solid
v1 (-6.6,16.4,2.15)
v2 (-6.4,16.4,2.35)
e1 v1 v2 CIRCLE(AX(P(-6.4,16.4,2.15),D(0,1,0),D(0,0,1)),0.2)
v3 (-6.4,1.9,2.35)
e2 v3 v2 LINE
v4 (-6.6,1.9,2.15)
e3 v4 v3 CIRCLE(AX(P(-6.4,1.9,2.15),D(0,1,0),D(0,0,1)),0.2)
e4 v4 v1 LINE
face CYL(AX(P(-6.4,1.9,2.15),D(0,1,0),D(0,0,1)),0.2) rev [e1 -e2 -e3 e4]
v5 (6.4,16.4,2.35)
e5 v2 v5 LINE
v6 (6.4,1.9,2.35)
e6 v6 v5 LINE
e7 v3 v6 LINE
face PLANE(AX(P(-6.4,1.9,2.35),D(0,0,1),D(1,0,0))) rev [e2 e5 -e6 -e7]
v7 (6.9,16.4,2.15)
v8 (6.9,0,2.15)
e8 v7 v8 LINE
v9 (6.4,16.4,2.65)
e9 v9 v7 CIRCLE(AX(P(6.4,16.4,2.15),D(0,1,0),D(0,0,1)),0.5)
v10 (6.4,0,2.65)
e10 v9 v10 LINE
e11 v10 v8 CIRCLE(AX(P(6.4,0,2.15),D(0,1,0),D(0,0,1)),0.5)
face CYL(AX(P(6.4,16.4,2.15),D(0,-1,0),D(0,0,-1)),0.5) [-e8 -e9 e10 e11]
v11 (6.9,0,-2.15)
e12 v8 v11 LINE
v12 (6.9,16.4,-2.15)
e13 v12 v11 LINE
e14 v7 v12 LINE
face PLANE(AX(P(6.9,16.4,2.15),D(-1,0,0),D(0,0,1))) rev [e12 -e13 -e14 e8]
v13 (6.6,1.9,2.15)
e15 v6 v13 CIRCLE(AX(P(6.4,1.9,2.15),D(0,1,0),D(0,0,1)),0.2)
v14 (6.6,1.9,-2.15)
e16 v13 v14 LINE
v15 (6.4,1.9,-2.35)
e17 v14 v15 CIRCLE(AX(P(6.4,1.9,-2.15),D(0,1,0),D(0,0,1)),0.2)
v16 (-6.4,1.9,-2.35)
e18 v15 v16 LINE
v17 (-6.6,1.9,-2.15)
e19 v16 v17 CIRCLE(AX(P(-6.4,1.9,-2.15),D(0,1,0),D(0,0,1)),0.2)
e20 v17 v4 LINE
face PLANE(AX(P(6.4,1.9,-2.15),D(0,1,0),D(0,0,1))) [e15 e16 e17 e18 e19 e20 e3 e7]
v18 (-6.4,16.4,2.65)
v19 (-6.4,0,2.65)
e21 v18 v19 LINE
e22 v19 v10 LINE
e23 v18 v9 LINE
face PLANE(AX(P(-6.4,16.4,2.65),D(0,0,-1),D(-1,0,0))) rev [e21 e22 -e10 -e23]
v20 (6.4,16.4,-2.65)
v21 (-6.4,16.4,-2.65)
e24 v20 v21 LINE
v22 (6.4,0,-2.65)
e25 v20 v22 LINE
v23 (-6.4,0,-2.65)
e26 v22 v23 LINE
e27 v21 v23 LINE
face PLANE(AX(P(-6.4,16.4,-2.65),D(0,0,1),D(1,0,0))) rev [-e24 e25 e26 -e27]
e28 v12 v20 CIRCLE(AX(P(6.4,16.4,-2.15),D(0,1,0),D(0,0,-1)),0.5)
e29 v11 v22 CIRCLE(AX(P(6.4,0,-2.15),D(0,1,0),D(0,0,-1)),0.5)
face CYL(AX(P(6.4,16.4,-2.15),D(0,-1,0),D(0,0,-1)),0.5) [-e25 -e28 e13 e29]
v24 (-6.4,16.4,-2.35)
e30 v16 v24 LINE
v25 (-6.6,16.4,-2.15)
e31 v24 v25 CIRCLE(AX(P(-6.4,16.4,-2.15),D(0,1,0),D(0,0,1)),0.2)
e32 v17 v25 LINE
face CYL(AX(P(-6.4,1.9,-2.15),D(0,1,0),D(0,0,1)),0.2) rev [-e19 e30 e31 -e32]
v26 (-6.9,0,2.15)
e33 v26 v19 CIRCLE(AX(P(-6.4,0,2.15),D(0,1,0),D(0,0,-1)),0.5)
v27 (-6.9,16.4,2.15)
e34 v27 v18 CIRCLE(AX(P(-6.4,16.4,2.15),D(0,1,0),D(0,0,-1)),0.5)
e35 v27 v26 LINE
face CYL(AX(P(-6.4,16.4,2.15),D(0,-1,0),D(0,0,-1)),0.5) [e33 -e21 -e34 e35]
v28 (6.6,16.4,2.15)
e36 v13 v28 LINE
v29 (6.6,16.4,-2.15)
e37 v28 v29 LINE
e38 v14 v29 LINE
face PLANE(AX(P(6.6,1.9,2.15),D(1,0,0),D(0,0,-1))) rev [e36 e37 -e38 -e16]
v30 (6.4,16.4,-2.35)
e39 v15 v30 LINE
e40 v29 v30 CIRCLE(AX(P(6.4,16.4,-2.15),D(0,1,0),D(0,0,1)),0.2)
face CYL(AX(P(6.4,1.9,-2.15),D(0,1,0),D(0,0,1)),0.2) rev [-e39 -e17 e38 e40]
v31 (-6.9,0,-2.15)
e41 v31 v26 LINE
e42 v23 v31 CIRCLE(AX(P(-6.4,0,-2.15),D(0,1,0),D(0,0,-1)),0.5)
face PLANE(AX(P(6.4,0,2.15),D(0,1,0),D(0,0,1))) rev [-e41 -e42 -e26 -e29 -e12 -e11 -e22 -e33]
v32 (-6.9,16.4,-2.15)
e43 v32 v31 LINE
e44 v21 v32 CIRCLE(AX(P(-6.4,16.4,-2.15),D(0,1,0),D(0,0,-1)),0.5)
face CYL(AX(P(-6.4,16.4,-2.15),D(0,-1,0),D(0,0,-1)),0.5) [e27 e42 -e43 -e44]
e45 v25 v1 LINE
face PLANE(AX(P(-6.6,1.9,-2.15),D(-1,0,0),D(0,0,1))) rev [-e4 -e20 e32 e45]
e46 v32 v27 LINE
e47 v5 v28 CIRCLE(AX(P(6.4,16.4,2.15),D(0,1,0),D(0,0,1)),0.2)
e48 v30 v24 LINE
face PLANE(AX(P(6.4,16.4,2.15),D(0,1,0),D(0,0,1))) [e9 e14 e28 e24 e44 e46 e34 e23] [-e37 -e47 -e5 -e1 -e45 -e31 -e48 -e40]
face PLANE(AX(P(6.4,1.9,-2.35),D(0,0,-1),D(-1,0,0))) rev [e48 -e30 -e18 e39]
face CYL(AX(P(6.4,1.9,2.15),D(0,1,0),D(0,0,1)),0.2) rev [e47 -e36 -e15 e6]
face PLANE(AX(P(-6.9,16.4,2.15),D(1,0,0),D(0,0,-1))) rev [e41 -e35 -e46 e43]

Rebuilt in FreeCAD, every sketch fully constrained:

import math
import FreeCAD as App
import Part
import Sketcher

doc = App.newDocument("Part")
body = doc.addObject("PartDesign::Body", "Body")

sketch1 = body.newObject("Sketcher::SketchObject", "Sketch")
sketch1.AttachmentSupport = (doc.getObject("XZ_Plane"), [""])
sketch1.MapMode = "FlatFace"
sketch1.addGeometry([
    Part.LineSegment(App.Vector(-6.4, 2.65, 0), App.Vector(6.4, 2.65, 0)),
    Part.ArcOfCircle(Part.Circle(App.Vector(6.4, 2.15, 0), App.Vector(0, 0, 1), 0.5), math.radians(0), math.radians(90)),
    Part.LineSegment(App.Vector(6.9, 2.15, 0), App.Vector(6.9, -2.15, 0)),
    Part.ArcOfCircle(Part.Circle(App.Vector(6.4, -2.15, 0), App.Vector(0, 0, 1), 0.5), math.radians(-90), math.radians(0)),
    Part.LineSegment(App.Vector(6.4, -2.65, 0), App.Vector(-6.4, -2.65, 0)),
    Part.ArcOfCircle(Part.Circle(App.Vector(-6.4, -2.15, 0), App.Vector(0, 0, 1), 0.5), math.radians(180), math.radians(270)),
    Part.LineSegment(App.Vector(-6.9, -2.15, 0), App.Vector(-6.9, 2.15, 0)),
    Part.ArcOfCircle(Part.Circle(App.Vector(-6.4, 2.15, 0), App.Vector(0, 0, 1), 0.5), math.radians(90), math.radians(180)),
], False)
sketch1.addConstraint([
    Sketcher.Constraint("Tangent", 0, 2, 1, 2),
    Sketcher.Constraint("Tangent", 1, 1, 2, 1),
    Sketcher.Constraint("Tangent", 2, 2, 3, 2),
    Sketcher.Constraint("Tangent", 3, 1, 4, 1),
    Sketcher.Constraint("Tangent", 4, 2, 5, 2),
    Sketcher.Constraint("Tangent", 5, 1, 6, 1),
    Sketcher.Constraint("Tangent", 6, 2, 7, 2),
    Sketcher.Constraint("Tangent", 7, 1, 0, 1),
    Sketcher.Constraint("Horizontal", 0),
    Sketcher.Constraint("Vertical", 2),
    Sketcher.Constraint("Horizontal", 4),
    Sketcher.Constraint("Vertical", 6),
    Sketcher.Constraint("Equal", 1, 3),
    Sketcher.Constraint("Equal", 3, 5),
    Sketcher.Constraint("Equal", 5, 7),
    Sketcher.Constraint("Symmetric", 1, 3, 5, 3, -1, 1),
    Sketcher.Constraint("Radius", 1, 0.5),
    Sketcher.Constraint("DistanceX", 0, 1, 0, 2, 12.8),
    Sketcher.Constraint("DistanceY", 2, 2, 2, 1, 4.3),
])
pad1 = body.newObject("PartDesign::Pad", "Pad")
pad1.Profile = sketch1
pad1.Length = 16.4
pad1.Reversed = True

sketch2 = body.newObject("Sketcher::SketchObject", "Sketch001")
sketch2.AttachmentSupport = (doc.getObject("XZ_Plane"), [""])
sketch2.MapMode = "FlatFace"
sketch2.AttachmentOffset = App.Placement(App.Vector(0, 0, -16.4), App.Rotation())
sketch2.addGeometry([
    Part.LineSegment(App.Vector(6.4, -2.35, 0), App.Vector(-6.4, -2.35, 0)),
    Part.ArcOfCircle(Part.Circle(App.Vector(-6.4, -2.15, 0), App.Vector(0, 0, 1), 0.2), math.radians(-180), math.radians(-90)),
    Part.LineSegment(App.Vector(-6.6, -2.15, 0), App.Vector(-6.6, 2.15, 0)),
    Part.ArcOfCircle(Part.Circle(App.Vector(-6.4, 2.15, 0), App.Vector(0, 0, 1), 0.2), math.radians(90), math.radians(180)),
    Part.LineSegment(App.Vector(-6.4, 2.35, 0), App.Vector(6.4, 2.35, 0)),
    Part.ArcOfCircle(Part.Circle(App.Vector(6.4, 2.15, 0), App.Vector(0, 0, 1), 0.2), math.radians(0), math.radians(90)),
    Part.LineSegment(App.Vector(6.6, 2.15, 0), App.Vector(6.6, -2.15, 0)),
    Part.ArcOfCircle(Part.Circle(App.Vector(6.4, -2.15, 0), App.Vector(0, 0, 1), 0.2), math.radians(-90), math.radians(0)),
], False)
sketch2.addConstraint([
    Sketcher.Constraint("Tangent", 0, 2, 1, 2),
    Sketcher.Constraint("Tangent", 1, 1, 2, 1),
    Sketcher.Constraint("Tangent", 2, 2, 3, 2),
    Sketcher.Constraint("Tangent", 3, 1, 4, 1),
    Sketcher.Constraint("Tangent", 4, 2, 5, 2),
    Sketcher.Constraint("Tangent", 5, 1, 6, 1),
    Sketcher.Constraint("Tangent", 6, 2, 7, 2),
    Sketcher.Constraint("Tangent", 7, 1, 0, 1),
    Sketcher.Constraint("Horizontal", 0),
    Sketcher.Constraint("Vertical", 2),
    Sketcher.Constraint("Horizontal", 4),
    Sketcher.Constraint("Vertical", 6),
    Sketcher.Constraint("Equal", 1, 3),
    Sketcher.Constraint("Equal", 3, 5),
    Sketcher.Constraint("Equal", 5, 7),
    Sketcher.Constraint("Symmetric", 1, 3, 5, 3, -1, 1),
    Sketcher.Constraint("Radius", 1, 0.2),
    Sketcher.Constraint("DistanceX", 0, 2, 0, 1, 12.8),
    Sketcher.Constraint("DistanceY", 2, 1, 2, 2, 4.3),
])
pocket1 = body.newObject("PartDesign::Pocket", "Pocket")
pocket1.Profile = sketch2
pocket1.Length = 14.5
pocket1.Reversed = True

doc.recompute()
